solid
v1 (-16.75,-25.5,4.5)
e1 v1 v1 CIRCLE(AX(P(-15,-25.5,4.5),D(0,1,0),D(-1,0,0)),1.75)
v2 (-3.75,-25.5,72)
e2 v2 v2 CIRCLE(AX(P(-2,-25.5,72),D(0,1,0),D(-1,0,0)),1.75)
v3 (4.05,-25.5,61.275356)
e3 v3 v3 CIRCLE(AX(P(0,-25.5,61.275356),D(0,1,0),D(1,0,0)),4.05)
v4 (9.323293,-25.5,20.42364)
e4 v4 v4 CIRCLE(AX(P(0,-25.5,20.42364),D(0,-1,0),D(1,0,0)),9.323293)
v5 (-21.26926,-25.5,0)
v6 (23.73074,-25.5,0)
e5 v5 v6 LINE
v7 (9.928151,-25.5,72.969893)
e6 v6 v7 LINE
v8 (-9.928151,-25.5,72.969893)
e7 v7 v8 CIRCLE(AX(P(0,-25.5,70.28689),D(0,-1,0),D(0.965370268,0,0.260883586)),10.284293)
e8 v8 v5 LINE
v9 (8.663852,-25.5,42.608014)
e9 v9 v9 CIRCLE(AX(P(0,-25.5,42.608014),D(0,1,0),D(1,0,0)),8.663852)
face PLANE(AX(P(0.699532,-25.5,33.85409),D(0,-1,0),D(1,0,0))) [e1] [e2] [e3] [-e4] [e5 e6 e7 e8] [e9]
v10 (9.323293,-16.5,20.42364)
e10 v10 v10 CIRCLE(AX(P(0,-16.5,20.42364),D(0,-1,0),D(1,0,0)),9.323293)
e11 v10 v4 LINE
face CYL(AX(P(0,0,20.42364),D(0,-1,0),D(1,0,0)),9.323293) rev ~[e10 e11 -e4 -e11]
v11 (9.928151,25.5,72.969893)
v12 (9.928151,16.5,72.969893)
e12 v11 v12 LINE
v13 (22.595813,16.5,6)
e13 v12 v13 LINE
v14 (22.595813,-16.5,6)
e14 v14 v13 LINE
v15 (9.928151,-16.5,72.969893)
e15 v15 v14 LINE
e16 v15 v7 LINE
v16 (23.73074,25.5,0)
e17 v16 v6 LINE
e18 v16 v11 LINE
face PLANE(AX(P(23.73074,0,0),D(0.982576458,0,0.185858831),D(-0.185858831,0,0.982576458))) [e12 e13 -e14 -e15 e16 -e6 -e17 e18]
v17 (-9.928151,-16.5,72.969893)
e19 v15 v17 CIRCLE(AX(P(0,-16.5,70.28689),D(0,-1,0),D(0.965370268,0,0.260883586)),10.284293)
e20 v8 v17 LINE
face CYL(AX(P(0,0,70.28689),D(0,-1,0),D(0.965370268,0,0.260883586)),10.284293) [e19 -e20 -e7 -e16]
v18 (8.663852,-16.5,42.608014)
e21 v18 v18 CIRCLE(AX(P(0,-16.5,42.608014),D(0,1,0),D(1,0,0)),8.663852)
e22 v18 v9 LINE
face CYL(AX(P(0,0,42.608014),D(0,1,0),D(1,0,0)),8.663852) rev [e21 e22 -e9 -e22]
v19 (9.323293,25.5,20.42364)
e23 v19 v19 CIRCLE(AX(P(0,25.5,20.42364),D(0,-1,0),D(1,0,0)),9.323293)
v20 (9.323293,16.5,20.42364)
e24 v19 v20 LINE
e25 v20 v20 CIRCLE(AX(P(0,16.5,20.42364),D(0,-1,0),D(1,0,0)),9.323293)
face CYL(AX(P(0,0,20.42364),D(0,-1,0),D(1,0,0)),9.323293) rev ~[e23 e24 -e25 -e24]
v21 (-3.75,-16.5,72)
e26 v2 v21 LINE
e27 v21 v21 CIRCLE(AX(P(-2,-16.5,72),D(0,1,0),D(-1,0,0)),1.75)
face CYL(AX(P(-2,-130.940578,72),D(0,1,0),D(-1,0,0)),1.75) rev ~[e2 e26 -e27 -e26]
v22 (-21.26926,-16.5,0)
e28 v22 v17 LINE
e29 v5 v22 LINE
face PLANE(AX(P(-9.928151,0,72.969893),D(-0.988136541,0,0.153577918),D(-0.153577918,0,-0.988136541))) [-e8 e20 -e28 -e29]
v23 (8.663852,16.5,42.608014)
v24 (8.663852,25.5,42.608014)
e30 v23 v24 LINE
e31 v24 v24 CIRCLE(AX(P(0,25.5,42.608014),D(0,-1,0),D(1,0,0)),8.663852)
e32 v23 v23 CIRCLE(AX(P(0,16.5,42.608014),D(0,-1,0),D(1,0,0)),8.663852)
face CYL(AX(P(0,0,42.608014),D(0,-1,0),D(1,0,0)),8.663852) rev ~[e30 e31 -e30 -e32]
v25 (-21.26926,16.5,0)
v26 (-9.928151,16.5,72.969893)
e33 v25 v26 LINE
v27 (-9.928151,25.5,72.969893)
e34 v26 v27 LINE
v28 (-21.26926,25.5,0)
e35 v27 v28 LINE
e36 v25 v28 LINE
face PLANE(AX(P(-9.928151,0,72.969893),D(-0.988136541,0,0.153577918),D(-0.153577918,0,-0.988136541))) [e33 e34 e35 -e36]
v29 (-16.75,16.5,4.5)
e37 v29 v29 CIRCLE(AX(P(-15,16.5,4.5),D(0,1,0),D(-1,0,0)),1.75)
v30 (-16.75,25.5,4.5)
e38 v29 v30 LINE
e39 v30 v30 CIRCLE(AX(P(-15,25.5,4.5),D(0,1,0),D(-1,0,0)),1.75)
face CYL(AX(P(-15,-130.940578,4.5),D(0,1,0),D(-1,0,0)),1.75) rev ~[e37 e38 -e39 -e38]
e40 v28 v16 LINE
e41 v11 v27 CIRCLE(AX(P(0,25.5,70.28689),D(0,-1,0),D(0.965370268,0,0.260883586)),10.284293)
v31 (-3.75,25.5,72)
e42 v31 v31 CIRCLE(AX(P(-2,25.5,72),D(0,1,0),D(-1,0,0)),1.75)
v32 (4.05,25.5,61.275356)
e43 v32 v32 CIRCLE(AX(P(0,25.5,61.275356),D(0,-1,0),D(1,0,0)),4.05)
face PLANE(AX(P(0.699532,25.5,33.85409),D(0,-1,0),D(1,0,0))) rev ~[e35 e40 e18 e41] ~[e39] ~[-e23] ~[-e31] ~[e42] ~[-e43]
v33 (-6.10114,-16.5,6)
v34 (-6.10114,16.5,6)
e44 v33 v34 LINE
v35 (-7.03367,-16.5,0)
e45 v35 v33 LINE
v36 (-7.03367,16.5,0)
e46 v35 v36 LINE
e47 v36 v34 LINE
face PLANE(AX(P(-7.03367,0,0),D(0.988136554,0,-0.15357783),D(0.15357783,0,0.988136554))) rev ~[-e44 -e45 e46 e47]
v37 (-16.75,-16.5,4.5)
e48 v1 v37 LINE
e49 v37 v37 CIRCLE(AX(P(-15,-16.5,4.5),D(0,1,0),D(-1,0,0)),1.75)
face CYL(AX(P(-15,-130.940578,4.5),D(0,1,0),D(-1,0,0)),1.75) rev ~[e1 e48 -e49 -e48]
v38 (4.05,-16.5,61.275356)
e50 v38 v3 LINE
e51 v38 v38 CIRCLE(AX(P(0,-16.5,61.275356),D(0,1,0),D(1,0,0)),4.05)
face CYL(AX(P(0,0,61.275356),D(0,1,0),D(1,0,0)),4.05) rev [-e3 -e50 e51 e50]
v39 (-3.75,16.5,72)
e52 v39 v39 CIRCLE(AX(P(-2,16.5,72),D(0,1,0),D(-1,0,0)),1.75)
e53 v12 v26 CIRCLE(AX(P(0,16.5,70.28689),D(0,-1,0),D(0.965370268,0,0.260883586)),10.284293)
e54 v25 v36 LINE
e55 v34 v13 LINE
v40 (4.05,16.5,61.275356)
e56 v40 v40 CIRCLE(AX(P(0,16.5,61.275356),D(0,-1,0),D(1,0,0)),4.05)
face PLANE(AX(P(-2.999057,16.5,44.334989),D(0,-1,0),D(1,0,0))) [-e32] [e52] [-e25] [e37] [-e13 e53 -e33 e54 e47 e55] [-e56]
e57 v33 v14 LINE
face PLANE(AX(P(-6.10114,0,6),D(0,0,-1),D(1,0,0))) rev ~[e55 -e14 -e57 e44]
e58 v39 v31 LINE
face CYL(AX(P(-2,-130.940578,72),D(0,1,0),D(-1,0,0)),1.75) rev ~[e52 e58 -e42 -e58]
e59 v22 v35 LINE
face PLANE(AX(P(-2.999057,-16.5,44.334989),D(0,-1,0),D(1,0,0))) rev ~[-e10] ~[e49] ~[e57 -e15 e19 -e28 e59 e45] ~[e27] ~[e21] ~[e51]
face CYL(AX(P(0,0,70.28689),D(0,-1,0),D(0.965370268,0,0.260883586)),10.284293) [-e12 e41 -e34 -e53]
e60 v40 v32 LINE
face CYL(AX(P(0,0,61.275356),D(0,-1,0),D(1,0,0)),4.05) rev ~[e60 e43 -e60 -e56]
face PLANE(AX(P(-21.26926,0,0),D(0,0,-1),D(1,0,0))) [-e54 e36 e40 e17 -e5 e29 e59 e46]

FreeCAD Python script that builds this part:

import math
import FreeCAD as App
import Part
import Sketcher
Q = App.Units.Quantity

doc = App.newDocument("Part")
body = doc.addObject("PartDesign::Body", "Body")

sketch1 = body.newObject("Sketcher::SketchObject", "Sketch")
sketch1.AttachmentSupport = (doc.getObject("XZ_Plane"), [""])
sketch1.MapMode = "FlatFace"
sketch1.addGeometry(Part.LineSegment(App.Vector(-21, 0, 0), App.Vector(24, 0, 0)), False)
sketch1.addGeometry(Part.LineSegment(App.Vector(24, 0, 0), App.Vector(10, 73, 0)), False)
sketch1.addGeometry(Part.ArcOfCircle(Part.Circle(App.Vector(0, 70, 0), App.Vector(0, 0, 1), 10), math.radians(15), math.radians(165)), False)
sketch1.addGeometry(Part.LineSegment(App.Vector(-10, 73, 0), App.Vector(-21, 0, 0)), False)
sketch1.addConstraint(Sketcher.Constraint("Coincident", 0, 2, 1, 1))
sketch1.addConstraint(Sketcher.Constraint("Coincident", 1, 2, 2, 1))
sketch1.addConstraint(Sketcher.Constraint("Coincident", 2, 2, 3, 1))
sketch1.addConstraint(Sketcher.Constraint("Coincident", 3, 2, 0, 1))
sketch1.addConstraint(Sketcher.Constraint("Horizontal", 0))
sketch1.addConstraint(Sketcher.Constraint("Symmetric", 1, 2, 2, 2, -2))
sketch1.addConstraint(Sketcher.Constraint("PointOnObject", 0, 2, -1))
sketch1.addConstraint(Sketcher.Constraint("DistanceX", 0, 1, 0, 2, Q("45 mm")))
sketch1.addConstraint(Sketcher.Constraint("Radius", 2, Q("10.284293 mm")))
sketch1.addConstraint(Sketcher.Constraint("DistanceX", 2, 2, 1, 2, Q("19.856302 mm")))
sketch1.addConstraint(Sketcher.Constraint("Distance", 3, Q("73.845962 mm")))
sketch1.addConstraint(Sketcher.Constraint("DistanceY", -1, 1, 2, 3, Q("70.28689 mm")))
pad1 = body.newObject("PartDesign::Pad", "Pad")
pad1.Profile = sketch1
pad1.Length = 51
pad1.Midplane = True
body2 = doc.addObject("PartDesign::Body", "Body001")

sketch2 = body2.newObject("Sketcher::SketchObject", "Sketch001")
sketch2.AttachmentSupport = (doc.getObject("XZ_Plane001"), [""])
sketch2.MapMode = "FlatFace"
sketch2.addGeometry(Part.LineSegment(App.Vector(-6, 6, 0), App.Vector(30, 6, 0)), False)
sketch2.addGeometry(Part.LineSegment(App.Vector(30, 6, 0), App.Vector(20, 90, 0)), False)
sketch2.addGeometry(Part.LineSegment(App.Vector(20, 90, 0), App.Vector(-30, 90, 0)), False)
sketch2.addGeometry(Part.LineSegment(App.Vector(-30, 90, 0), App.Vector(-30, 0, 0)), False)
sketch2.addGeometry(Part.LineSegment(App.Vector(-30, 0, 0), App.Vector(-7, 0, 0)), False)
sketch2.addGeometry(Part.LineSegment(App.Vector(-7, 0, 0), App.Vector(-6, 6, 0)), False)
sketch2.addConstraint(Sketcher.Constraint("Coincident", 0, 2, 1, 1))
sketch2.addConstraint(Sketcher.Constraint("Coincident", 1, 2, 2, 1))
sketch2.addConstraint(Sketcher.Constraint("Coincident", 2, 2, 3, 1))
sketch2.addConstraint(Sketcher.Constraint("Coincident", 3, 2, 4, 1))
sketch2.addConstraint(Sketcher.Constraint("Coincident", 4, 2, 5, 1))
sketch2.addConstraint(Sketcher.Constraint("Coincident", 5, 2, 0, 1))
sketch2.addConstraint(Sketcher.Constraint("Horizontal", 0))
sketch2.addConstraint(Sketcher.Constraint("Horizontal", 2))
sketch2.addConstraint(Sketcher.Constraint("Vertical", 3))
sketch2.addConstraint(Sketcher.Constraint("Horizontal", 4))
sketch2.addConstraint(Sketcher.Constraint("PointOnObject", 3, 2, -1))
sketch2.addConstraint(Sketcher.Constraint("DistanceX", 2, 2, 2, 1, Q("50 mm")))
sketch2.addConstraint(Sketcher.Constraint("DistanceY", 3, 2, 3, 1, Q("90 mm")))
sketch2.addConstraint(Sketcher.Constraint("DistanceX", -1, 1, 0, 2, Q("30 mm")))
sketch2.addConstraint(Sketcher.Constraint("DistanceY", -1, 1, 0, 2, Q("6 mm")))
sketch2.addConstraint(Sketcher.Constraint("DistanceX", -1, 1, 1, 2, Q("20 mm")))
sketch2.addConstraint(Sketcher.Constraint("DistanceX", 0, 1, 0, 2, Q("36.10114 mm")))
sketch2.addConstraint(Sketcher.Constraint("DistanceX", 4, 1, 4, 2, Q("22.96633 mm")))
pad2 = body2.newObject("PartDesign::Pad", "Pad001")
pad2.Profile = sketch2
pad2.Length = 33
pad2.Midplane = True
doc.recompute()

boolean = body.newObject("PartDesign::Boolean", "Boolean")
boolean.Type = "Cut"
boolean.addObjects([body2])

sketch3 = body.newObject("Sketcher::SketchObject", "Sketch002")
sketch3.AttachmentSupport = (doc.getObject("XZ_Plane"), [""])
sketch3.MapMode = "FlatFace"
sketch3.AttachmentOffset = App.Placement(App.Vector(0, 0, 25.5), App.Rotation())
sketch3.addGeometry(Part.Circle(App.Vector(-2, 72, 0), App.Vector(0, 0, 1), 1.8), False)
sketch3.addGeometry(Part.Circle(App.Vector(-15, 4.5, 0), App.Vector(0, 0, 1), 1.8), False)
sketch3.addConstraint(Sketcher.Constraint("Equal", 0, 1))
sketch3.addConstraint(Sketcher.Constraint("Diameter", 0, Q("3.5 mm")))
sketch3.addConstraint(Sketcher.Constraint("DistanceX", 0, 3, -1, 1, Q("2 mm")))
sketch3.addConstraint(Sketcher.Constraint("DistanceY", -1, 1, 0, 3, Q("72 mm")))
sketch3.addConstraint(Sketcher.Constraint("DistanceX", 1, 3, -1, 1, Q("15 mm")))
sketch3.addConstraint(Sketcher.Constraint("DistanceY", -1, 1, 1, 3, Q("4.5 mm")))
doc.recompute()
hole = body.newObject("PartDesign::Hole", "Hole")
hole.Profile = sketch3
hole.ThreadType = "None"
hole.Diameter = 3.5
hole.DepthType = "ThroughAll"
body3 = doc.addObject("PartDesign::Body", "Body002")
body3.AllowCompound = True

sketch4 = body3.newObject("Sketcher::SketchObject", "Sketch003")
sketch4.AttachmentSupport = (doc.getObject("XZ_Plane002"), [""])
sketch4.MapMode = "FlatFace"
sketch4.addGeometry(Part.Circle(App.Vector(0, 42.6, 0), App.Vector(0, 0, 1), 8.7), False)
sketch4.addGeometry(Part.Circle(App.Vector(0, 61.3, 0), App.Vector(0, 0, 1), 4), False)
sketch4.addGeometry(Part.Circle(App.Vector(0, 20.4, 0), App.Vector(0, 0, 1), 9.3), False)
sketch4.addConstraint(Sketcher.Constraint("PointOnObject", 0, 3, -2))
sketch4.addConstraint(Sketcher.Constraint("PointOnObject", 1, 3, -2))
sketch4.addConstraint(Sketcher.Constraint("PointOnObject", 2, 3, -2))
sketch4.addConstraint(Sketcher.Constraint("Diameter", 1, Q("8.1 mm")))
sketch4.addConstraint(Sketcher.Constraint("Diameter", 0, Q("17.327704 mm")))
sketch4.addConstraint(Sketcher.Constraint("Diameter", 2, Q("18.646586 mm")))
sketch4.addConstraint(Sketcher.Constraint("DistanceY", -1, 1, 2, 3, Q("20.42364 mm")))
sketch4.addConstraint(Sketcher.Constraint("DistanceY", -1, 1, 0, 3, Q("42.608014 mm")))
sketch4.addConstraint(Sketcher.Constraint("DistanceY", -1, 1, 1, 3, Q("61.275356 mm")))
pad3 = body3.newObject("PartDesign::Pad", "Pad002")
pad3.Profile = sketch4
pad3.Length = 80
pad3.Midplane = True
doc.recompute()

boolean2 = body.newObject("PartDesign::Boolean", "Boolean001")
boolean2.Type = "Cut"
boolean2.addObjects([body3])

doc.recompute()
